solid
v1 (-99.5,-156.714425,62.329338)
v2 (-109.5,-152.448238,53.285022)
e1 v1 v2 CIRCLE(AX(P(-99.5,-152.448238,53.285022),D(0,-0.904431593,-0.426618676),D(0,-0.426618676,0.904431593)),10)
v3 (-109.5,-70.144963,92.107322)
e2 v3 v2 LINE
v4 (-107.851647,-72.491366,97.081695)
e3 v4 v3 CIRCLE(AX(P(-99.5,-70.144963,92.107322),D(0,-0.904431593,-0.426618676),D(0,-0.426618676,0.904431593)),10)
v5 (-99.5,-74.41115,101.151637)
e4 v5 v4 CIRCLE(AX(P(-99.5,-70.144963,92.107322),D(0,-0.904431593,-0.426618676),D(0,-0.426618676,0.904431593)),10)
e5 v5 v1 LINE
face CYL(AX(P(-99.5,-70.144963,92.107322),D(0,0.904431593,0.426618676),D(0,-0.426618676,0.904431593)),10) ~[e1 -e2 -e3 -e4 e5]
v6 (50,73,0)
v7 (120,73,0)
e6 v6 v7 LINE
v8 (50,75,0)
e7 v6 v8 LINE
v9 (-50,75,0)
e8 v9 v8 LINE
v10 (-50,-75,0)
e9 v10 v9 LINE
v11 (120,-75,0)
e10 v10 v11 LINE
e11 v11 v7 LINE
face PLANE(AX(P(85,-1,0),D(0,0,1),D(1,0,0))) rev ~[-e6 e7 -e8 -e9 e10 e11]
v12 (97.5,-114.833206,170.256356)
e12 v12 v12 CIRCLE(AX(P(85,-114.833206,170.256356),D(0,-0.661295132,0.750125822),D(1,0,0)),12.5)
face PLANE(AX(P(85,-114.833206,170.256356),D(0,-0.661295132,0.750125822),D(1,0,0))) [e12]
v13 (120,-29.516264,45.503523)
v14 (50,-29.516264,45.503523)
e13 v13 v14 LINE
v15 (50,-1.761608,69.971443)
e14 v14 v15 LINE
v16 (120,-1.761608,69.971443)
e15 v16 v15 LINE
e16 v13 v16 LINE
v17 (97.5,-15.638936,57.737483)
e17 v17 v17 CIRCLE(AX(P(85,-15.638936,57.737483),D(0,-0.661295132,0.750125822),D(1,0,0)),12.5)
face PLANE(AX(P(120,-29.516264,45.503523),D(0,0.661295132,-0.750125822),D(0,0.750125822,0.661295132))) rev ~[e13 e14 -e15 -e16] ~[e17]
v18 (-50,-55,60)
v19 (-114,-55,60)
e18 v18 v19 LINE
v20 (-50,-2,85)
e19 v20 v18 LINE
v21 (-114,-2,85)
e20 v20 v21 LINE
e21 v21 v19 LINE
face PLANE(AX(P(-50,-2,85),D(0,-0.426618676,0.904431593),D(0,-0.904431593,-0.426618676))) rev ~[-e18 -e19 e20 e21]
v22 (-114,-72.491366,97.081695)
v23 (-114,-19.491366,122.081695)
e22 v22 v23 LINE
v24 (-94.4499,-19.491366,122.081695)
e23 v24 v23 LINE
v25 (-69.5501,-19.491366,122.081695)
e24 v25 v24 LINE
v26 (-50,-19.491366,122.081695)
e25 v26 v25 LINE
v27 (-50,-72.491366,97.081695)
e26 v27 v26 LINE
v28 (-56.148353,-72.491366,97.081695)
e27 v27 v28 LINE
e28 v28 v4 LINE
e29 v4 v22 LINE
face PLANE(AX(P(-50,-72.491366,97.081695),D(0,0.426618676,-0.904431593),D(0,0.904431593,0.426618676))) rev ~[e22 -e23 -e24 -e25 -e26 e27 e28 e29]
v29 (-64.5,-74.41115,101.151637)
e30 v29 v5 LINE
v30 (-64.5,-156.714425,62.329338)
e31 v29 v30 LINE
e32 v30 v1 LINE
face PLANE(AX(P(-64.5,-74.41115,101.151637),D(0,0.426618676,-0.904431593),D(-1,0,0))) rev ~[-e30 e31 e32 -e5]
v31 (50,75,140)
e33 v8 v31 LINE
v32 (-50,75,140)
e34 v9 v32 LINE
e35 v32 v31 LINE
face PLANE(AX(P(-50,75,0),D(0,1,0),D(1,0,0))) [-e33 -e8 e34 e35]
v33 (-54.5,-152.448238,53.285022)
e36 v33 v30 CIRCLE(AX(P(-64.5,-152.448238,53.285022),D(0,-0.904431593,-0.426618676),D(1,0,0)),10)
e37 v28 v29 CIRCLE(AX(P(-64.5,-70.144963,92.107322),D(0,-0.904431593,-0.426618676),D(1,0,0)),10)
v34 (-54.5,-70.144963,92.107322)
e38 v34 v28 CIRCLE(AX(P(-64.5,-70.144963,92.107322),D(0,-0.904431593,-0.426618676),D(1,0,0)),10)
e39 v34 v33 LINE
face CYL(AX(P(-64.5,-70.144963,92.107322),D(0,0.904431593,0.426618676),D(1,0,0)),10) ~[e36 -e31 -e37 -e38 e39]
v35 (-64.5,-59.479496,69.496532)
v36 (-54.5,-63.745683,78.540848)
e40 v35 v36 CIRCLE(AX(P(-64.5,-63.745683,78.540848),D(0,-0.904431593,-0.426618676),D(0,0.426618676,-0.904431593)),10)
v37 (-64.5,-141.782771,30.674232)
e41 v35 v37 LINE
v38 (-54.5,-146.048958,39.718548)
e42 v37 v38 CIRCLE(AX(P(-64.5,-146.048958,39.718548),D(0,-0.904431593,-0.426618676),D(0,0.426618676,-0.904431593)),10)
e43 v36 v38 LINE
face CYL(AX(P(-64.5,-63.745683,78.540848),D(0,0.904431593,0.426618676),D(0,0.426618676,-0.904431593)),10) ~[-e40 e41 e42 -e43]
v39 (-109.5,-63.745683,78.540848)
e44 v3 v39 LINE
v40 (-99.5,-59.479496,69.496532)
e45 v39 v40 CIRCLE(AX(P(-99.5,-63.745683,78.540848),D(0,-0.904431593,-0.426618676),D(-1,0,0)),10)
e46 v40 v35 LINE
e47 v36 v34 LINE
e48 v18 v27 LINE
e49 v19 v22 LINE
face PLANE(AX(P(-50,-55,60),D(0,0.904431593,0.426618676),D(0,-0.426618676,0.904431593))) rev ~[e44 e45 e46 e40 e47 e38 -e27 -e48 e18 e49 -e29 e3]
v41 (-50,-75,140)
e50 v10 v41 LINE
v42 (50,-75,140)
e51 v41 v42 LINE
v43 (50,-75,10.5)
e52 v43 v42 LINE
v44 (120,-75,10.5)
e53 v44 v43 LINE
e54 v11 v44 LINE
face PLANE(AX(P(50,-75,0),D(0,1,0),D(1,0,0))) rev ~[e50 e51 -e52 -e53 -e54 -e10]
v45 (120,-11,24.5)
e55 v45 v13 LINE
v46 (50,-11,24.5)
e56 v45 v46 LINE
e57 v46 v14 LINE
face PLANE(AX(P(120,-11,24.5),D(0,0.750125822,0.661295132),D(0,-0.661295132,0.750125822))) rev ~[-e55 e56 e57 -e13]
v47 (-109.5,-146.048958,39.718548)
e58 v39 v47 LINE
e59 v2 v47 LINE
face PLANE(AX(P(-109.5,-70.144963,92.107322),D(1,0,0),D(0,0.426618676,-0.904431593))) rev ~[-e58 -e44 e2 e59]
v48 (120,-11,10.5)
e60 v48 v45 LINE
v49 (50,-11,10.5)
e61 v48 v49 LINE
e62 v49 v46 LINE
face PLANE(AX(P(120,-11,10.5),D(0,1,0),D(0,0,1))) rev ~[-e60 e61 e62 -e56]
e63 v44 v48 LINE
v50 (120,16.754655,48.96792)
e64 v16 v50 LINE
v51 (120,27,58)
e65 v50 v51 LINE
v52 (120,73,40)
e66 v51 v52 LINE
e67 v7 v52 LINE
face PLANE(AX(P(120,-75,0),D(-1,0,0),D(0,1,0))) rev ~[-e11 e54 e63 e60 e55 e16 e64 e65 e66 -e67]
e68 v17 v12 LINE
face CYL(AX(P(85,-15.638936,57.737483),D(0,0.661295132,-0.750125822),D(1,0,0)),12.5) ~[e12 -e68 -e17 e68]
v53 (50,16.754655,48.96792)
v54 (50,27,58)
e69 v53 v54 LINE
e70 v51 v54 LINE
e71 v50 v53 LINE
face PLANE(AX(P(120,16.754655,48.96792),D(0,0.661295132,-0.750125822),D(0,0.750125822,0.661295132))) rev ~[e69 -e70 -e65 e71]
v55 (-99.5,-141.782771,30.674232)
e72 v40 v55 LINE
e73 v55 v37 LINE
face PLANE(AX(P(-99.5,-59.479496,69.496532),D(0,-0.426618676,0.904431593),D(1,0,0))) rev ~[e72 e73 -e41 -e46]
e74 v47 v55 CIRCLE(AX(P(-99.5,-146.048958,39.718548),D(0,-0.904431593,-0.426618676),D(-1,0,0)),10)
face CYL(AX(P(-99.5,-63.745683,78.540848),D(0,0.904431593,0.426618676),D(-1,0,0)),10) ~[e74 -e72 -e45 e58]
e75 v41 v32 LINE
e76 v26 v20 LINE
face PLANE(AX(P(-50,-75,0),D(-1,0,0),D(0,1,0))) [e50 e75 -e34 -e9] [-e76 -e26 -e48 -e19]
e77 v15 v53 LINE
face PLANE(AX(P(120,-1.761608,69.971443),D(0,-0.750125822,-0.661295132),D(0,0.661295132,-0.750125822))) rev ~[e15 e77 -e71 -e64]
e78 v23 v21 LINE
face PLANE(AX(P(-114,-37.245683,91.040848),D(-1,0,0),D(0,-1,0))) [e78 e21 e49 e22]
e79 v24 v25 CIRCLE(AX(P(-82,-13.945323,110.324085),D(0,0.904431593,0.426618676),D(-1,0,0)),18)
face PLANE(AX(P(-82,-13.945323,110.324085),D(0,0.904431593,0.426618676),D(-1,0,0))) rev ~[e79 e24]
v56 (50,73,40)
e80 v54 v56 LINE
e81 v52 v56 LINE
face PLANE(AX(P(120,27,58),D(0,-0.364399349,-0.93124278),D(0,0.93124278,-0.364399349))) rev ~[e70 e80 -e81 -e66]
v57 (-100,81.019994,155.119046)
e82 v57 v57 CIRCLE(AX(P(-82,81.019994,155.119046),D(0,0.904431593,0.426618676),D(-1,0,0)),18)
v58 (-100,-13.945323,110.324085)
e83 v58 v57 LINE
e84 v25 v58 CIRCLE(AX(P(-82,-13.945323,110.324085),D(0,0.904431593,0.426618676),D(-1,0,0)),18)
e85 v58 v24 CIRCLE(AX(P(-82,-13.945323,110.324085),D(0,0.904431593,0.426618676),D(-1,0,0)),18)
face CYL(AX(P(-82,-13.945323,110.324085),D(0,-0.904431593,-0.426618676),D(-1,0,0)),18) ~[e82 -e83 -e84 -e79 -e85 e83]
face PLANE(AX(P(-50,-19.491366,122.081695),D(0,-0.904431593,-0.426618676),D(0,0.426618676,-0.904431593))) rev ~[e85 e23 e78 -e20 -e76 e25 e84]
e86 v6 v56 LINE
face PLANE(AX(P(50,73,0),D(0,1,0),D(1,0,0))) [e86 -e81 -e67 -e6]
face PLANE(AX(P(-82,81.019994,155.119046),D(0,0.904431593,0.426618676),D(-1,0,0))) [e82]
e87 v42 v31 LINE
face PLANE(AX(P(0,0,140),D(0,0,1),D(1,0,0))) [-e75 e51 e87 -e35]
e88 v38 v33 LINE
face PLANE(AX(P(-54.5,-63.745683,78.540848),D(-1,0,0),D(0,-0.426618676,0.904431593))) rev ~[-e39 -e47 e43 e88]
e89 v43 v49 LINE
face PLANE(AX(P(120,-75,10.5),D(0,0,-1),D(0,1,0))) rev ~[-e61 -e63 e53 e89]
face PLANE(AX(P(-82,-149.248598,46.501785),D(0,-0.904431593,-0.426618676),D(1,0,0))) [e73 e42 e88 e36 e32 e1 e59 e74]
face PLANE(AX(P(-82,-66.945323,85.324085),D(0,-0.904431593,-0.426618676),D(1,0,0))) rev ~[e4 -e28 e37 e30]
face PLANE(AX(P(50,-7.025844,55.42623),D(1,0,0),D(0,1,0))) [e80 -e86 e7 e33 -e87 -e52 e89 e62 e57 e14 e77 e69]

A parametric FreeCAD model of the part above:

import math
import FreeCAD as App
import Part
import Sketcher

V = App.Vector


def add_polygon(sketch, points):
    """Adds a closed chain of lines whose ends are joined by coincident constraints."""
    first, n = sketch.GeometryCount, len(points)
    for a, b in zip(points, points[1:] + points[:1]):
        sketch.addGeometry(Part.LineSegment(App.Vector(*a, 0), App.Vector(*b, 0)), False)
    for i in range(n):
        sketch.addConstraint(Sketcher.Constraint("Coincident", first + i, 2, first + (i + 1) % n, 1))

doc = App.newDocument("Part")
params = doc.addObject("Spreadsheet::Sheet", "Params")
for row, (alias, value) in enumerate([
    ("sketch1_width", "100 mm"),
    ("sketch1_height", "150 mm"),
    ("pad1_length", "140 mm"),
    ("sketch2_width", "70 mm"),
    ("sketch2_height", "148 mm"),
    ("pad2_length", "85 mm"),
    ("sketch3_width", "148 mm"),
    ("sketch3_width2", "64 mm"),
    ("sketch3_height", "45 mm"),
    ("sketch3_height2", "14 mm"),
    ("sketch3_length", "28 mm"),
    ("pocket1_length", "70 mm"),
    ("sketch4_diameter", "25 mm"),
    ("pad3_length", "150 mm"),
    ("sketch5_length", "41 mm"),
    ("pad4_length", "64 mm"),
    ("sketch6_diameter", "36 mm"),
    ("pad5_length", "105 mm"),
    ("sketch7_radius", "10 mm"),
    ("sketch7_width", "35 mm"),
    ("sketch7_height", "15 mm"),
    ("pad6_length", "91 mm"),
], start=1):
    params.set(f"A{row}", alias)
    params.set(f"B{row}", "=" + value)
    params.setAlias(f"B{row}", alias)

body = doc.addObject("PartDesign::Body", "Body")

# Sketch on XY plane
sketch1 = doc.addObject("Sketcher::SketchObject", "Sketch")
body.addObject(sketch1)
sketch1.AttachmentSupport = (doc.XY_Plane, [""])
sketch1.MapMode = "FlatFace"
add_polygon(sketch1, [(-50, 75), (-50, -75), (50, -75), (50, 75)])  # lines 0-3
sketch1.addConstraint(Sketcher.Constraint("Vertical", 0))
sketch1.addConstraint(Sketcher.Constraint("Horizontal", 1))
sketch1.addConstraint(Sketcher.Constraint("Vertical", 2))
sketch1.addConstraint(Sketcher.Constraint("Horizontal", 3))
sketch1.addConstraint(Sketcher.Constraint("Symmetric", 0, 2, 2, 2, -1, 1))
sketch1.addConstraint(Sketcher.Constraint("DistanceX", 1, 1, 1, 2, 100.0))
sketch1.addConstraint(Sketcher.Constraint("DistanceY", 0, 2, 0, 1, 150.0))
sketch1.setExpression("Constraints[9]", "Params.sketch1_width")
sketch1.setExpression("Constraints[10]", "Params.sketch1_height")
pad1 = doc.addObject("PartDesign::Pad", "Pad")
body.addObject(pad1)
pad1.Profile = sketch1
pad1.setExpression("Length", "Params.pad1_length")

# Sketch on XY plane
sketch2 = doc.addObject("Sketcher::SketchObject", "Sketch001")
body.addObject(sketch2)
sketch2.AttachmentSupport = (doc.XY_Plane, [""])
sketch2.MapMode = "FlatFace"
add_polygon(sketch2, [(50, 73), (50, -75), (120, -75), (120, 73)])  # lines 0-3
sketch2.addConstraint(Sketcher.Constraint("Vertical", 0))
sketch2.addConstraint(Sketcher.Constraint("Horizontal", 1))
sketch2.addConstraint(Sketcher.Constraint("Vertical", 2))
sketch2.addConstraint(Sketcher.Constraint("Horizontal", 3))
sketch2.addConstraint(Sketcher.Constraint("DistanceX", 1, 1, 1, 2, 70.0))
sketch2.addConstraint(Sketcher.Constraint("DistanceY", 0, 2, 0, 1, 148.0))
sketch2.addConstraint(Sketcher.Constraint("DistanceX", -1, 1, 0, 2, 50.0))
sketch2.addConstraint(Sketcher.Constraint("DistanceY", 0, 2, -1, 1, 75.0))
sketch2.setExpression("Constraints[8]", "Params.sketch2_width")
sketch2.setExpression("Constraints[9]", "Params.sketch2_height")
pad2 = doc.addObject("PartDesign::Pad", "Pad001")
body.addObject(pad2)
pad2.Profile = sketch2
pad2.setExpression("Length", "Params.pad2_length")

# Sketch on YZ plane
sketch3 = doc.addObject("Sketcher::SketchObject", "Sketch002")
body.addObject(sketch3)
sketch3.AttachmentSupport = (doc.YZ_Plane, [""])
sketch3.MapMode = "FlatFace"
sketch3.AttachmentOffset = App.Placement(V(0, 0, 120), App.Rotation())
add_polygon(sketch3, [(27, 58), (73, 40), (73, 85), (-75, 85), (-75, 10), (-11, 10), (-11, 24), (-30, 46), (-2, 70), (17, 49)])  # lines 0-9
sketch3.addConstraint(Sketcher.Constraint("Vertical", 1))
sketch3.addConstraint(Sketcher.Constraint("Horizontal", 2))
sketch3.addConstraint(Sketcher.Constraint("Vertical", 3))
sketch3.addConstraint(Sketcher.Constraint("Horizontal", 4))
sketch3.addConstraint(Sketcher.Constraint("Vertical", 5))
sketch3.addConstraint(Sketcher.Constraint("Perpendicular", 6, 7))
sketch3.addConstraint(Sketcher.Constraint("Perpendicular", 7, 8))
sketch3.addConstraint(Sketcher.Constraint("Perpendicular", 8, 9))
sketch3.addConstraint(Sketcher.Constraint("Equal", 6, 8))
sketch3.addConstraint(Sketcher.Constraint("DistanceX", 2, 2, 2, 1, 148.0))
sketch3.addConstraint(Sketcher.Constraint("DistanceX", 4, 1, 4, 2, 64.0))
sketch3.addConstraint(Sketcher.Constraint("DistanceY", 1, 1, 1, 2, 45.0))
sketch3.addConstraint(Sketcher.Constraint("DistanceY", 5, 1, 5, 2, 14.0))
sketch3.addConstraint(Sketcher.Constraint("Distance", 6, 28.0))
sketch3.addConstraint(Sketcher.Constraint("Distance", 7, 37.0))
sketch3.addConstraint(Sketcher.Constraint("DistanceY", 3, 2, 3, 1, 74.5))
sketch3.addConstraint(Sketcher.Constraint("DistanceX", -1, 1, 0, 2, 73.0))
sketch3.addConstraint(Sketcher.Constraint("DistanceY", -1, 1, 0, 2, 40.0))
sketch3.addConstraint(Sketcher.Constraint("DistanceX", -1, 1, 9, 2, 27.0))
sketch3.addConstraint(Sketcher.Constraint("DistanceY", -1, 1, 9, 2, 58.0))
sketch3.setExpression("Constraints[19]", "Params.sketch3_width")
sketch3.setExpression("Constraints[20]", "Params.sketch3_width2")
sketch3.setExpression("Constraints[21]", "Params.sketch3_height")
sketch3.setExpression("Constraints[22]", "Params.sketch3_height2")
sketch3.setExpression("Constraints[23]", "Params.sketch3_length")
pocket1 = doc.addObject("PartDesign::Pocket", "Pocket")
body.addObject(pocket1)
pocket1.Profile = sketch3
pocket1.setExpression("Length", "Params.pocket1_length")

# Sketch on an angled plane
sketch4 = doc.addObject("Sketcher::SketchObject", "Sketch003")
body.addObject(sketch4)
sketch4.Placement = App.Placement(V(0, -35.480024, 40.245997), App.Rotation(V(1, 0, 0), V(0, 0.750125822, 0.661295132), V(0, -0.661295132, 0.750125822), "ZXY"))
sketch4.addGeometry(Part.Circle(V(85, 26, 0), V(0, 0, 1), 12), False)
sketch4.addConstraint(Sketcher.Constraint("Diameter", 0, 25.0))
sketch4.addConstraint(Sketcher.Constraint("DistanceX", -1, 1, 0, 3, 85.0))
sketch4.addConstraint(Sketcher.Constraint("DistanceY", -1, 1, 0, 3, 26.450347))
sketch4.setExpression("Constraints[0]", "Params.sketch4_diameter")
pad3 = doc.addObject("PartDesign::Pad", "Pad002")
body.addObject(pad3)
pad3.Profile = sketch4
pad3.setExpression("Length", "Params.pad3_length")

# Sketch on YZ plane
sketch5 = doc.addObject("Sketcher::SketchObject", "Sketch004")
body.addObject(sketch5)
sketch5.AttachmentSupport = (doc.YZ_Plane, [""])
sketch5.MapMode = "FlatFace"
sketch5.AttachmentOffset = App.Placement(V(0, 0, -50), App.Rotation())
add_polygon(sketch5, [(-2, 85), (-55, 60), (-72, 97), (-19, 122)])  # lines 0-3
sketch5.addConstraint(Sketcher.Constraint("Perpendicular", 0, 1))
sketch5.addConstraint(Sketcher.Constraint("Perpendicular", 1, 2))
sketch5.addConstraint(Sketcher.Constraint("Perpendicular", 2, 3))
sketch5.addConstraint(Sketcher.Constraint("Distance", 1, 41.0))
sketch5.addConstraint(Sketcher.Constraint("DistanceX", 0, 2, -1, 1, 55.0))
sketch5.addConstraint(Sketcher.Constraint("DistanceY", -1, 1, 0, 2, 60.0))
sketch5.addConstraint(Sketcher.Constraint("DistanceX", 3, 2, -1, 1, 2.0))
sketch5.addConstraint(Sketcher.Constraint("DistanceY", -1, 1, 3, 2, 85.0))
sketch5.setExpression("Constraints[7]", "Params.sketch5_length")
pad4 = doc.addObject("PartDesign::Pad", "Pad003")
body.addObject(pad4)
pad4.Profile = sketch5
pad4.setExpression("Length", "Params.pad4_length")
pad4.Reversed = True

# Sketch on an angled plane
sketch6 = doc.addObject("Sketcher::SketchObject", "Sketch005")
body.addObject(sketch6)
sketch6.Placement = App.Placement(V(0, 31.161037, 14.698602), App.Rotation(V(-1, 0, 0), V(0, -0.426618676, 0.904431593), V(0, 0.904431593, 0.426618676), "ZXY"))
sketch6.addGeometry(Part.Circle(V(82, 106, 0), V(0, 0, 1), 18), False)
sketch6.addConstraint(Sketcher.Constraint("Diameter", 0, 36.0))
sketch6.addConstraint(Sketcher.Constraint("DistanceX", -1, 1, 0, 3, 82.0))
sketch6.addConstraint(Sketcher.Constraint("DistanceY", -1, 1, 0, 3, 105.729923))
sketch6.setExpression("Constraints[0]", "Params.sketch6_diameter")
pad5 = doc.addObject("PartDesign::Pad", "Pad004")
body.addObject(pad5)
pad5.Profile = sketch6
pad5.setExpression("Length", "Params.pad5_length")

# Sketch on an angled plane
sketch7 = doc.addObject("Sketcher::SketchObject", "Sketch006")
body.addObject(sketch7)
sketch7.Placement = App.Placement(V(0, -21.838963, -10.301398), App.Rotation(V(1, 0, 0), V(0, -0.426618676, 0.904431593), V(0, -0.904431593, -0.426618676), "ZXY"))
sketch7.addGeometry(Part.ArcOfCircle(Part.Circle(V(-100, 98, 0), V(0, 0, 1), 10), math.radians(180), math.radians(270)), False)
sketch7.addGeometry(Part.LineSegment(V(-100, 88, 0), V(-64, 88, 0)), False)
sketch7.addGeometry(Part.ArcOfCircle(Part.Circle(V(-64, 98, 0), V(0, 0, 1), 10), math.radians(-90), math.radians(0)), False)
sketch7.addGeometry(Part.LineSegment(V(-54, 98, 0), V(-54, 113, 0)), False)
sketch7.addGeometry(Part.ArcOfCircle(Part.Circle(V(-64, 113, 0), V(0, 0, 1), 10), math.radians(0), math.radians(90)), False)
sketch7.addGeometry(Part.LineSegment(V(-64, 123, 0), V(-100, 123, 0)), False)
sketch7.addGeometry(Part.ArcOfCircle(Part.Circle(V(-100, 113, 0), V(0, 0, 1), 10), math.radians(90), math.radians(180)), False)
sketch7.addGeometry(Part.LineSegment(V(-110, 113, 0), V(-110, 98, 0)), False)
sketch7.addConstraint(Sketcher.Constraint("Tangent", 0, 2, 1, 1))
sketch7.addConstraint(Sketcher.Constraint("Tangent", 1, 2, 2, 1))
sketch7.addConstraint(Sketcher.Constraint("Tangent", 2, 2, 3, 1))
sketch7.addConstraint(Sketcher.Constraint("Tangent", 3, 2, 4, 1))
sketch7.addConstraint(Sketcher.Constraint("Tangent", 4, 2, 5, 1))
sketch7.addConstraint(Sketcher.Constraint("Tangent", 5, 2, 6, 1))
sketch7.addConstraint(Sketcher.Constraint("Tangent", 6, 2, 7, 1))
sketch7.addConstraint(Sketcher.Constraint("Tangent", 7, 2, 0, 1))
sketch7.addConstraint(Sketcher.Constraint("Horizontal", 1))
sketch7.addConstraint(Sketcher.Constraint("Vertical", 3))
sketch7.addConstraint(Sketcher.Constraint("Horizontal", 5))
sketch7.addConstraint(Sketcher.Constraint("Vertical", 7))
sketch7.addConstraint(Sketcher.Constraint("Equal", 0, 2))
sketch7.addConstraint(Sketcher.Constraint("Equal", 2, 4))
sketch7.addConstraint(Sketcher.Constraint("Equal", 4, 6))
sketch7.addConstraint(Sketcher.Constraint("Radius", 0, 10.0))
sketch7.addConstraint(Sketcher.Constraint("DistanceX", 1, 1, 1, 2, 35.0))
sketch7.addConstraint(Sketcher.Constraint("DistanceY", 3, 1, 3, 2, 15.0))
sketch7.addConstraint(Sketcher.Constraint("DistanceX", 0, 3, -1, 1, 99.5))
sketch7.addConstraint(Sketcher.Constraint("DistanceY", -1, 1, 0, 3, 98.229923))
sketch7.setExpression("Constraints[15]", "Params.sketch7_radius")
sketch7.setExpression("Constraints[16]", "Params.sketch7_width")
sketch7.setExpression("Constraints[17]", "Params.sketch7_height")
pad6 = doc.addObject("PartDesign::Pad", "Pad005")
body.addObject(pad6)
pad6.Profile = sketch7
pad6.setExpression("Length", "Params.pad6_length")

doc.recompute()
